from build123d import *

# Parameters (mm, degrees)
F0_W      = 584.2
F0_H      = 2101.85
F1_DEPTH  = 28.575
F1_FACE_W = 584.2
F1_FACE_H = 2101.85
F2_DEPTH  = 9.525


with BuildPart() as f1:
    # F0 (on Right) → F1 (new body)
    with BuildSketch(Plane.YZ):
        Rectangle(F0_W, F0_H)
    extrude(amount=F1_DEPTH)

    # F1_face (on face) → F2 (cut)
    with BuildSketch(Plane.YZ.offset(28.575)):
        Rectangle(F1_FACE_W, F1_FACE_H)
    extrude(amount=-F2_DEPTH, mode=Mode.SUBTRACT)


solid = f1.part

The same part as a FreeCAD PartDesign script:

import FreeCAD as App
import Part
import Sketcher
Q = App.Units.Quantity

doc = App.newDocument("Part")
body = doc.addObject("PartDesign::Body", "Body")

# Sketch on YZ plane
sketch1 = body.newObject("Sketcher::SketchObject", "Sketch")
sketch1.AttachmentSupport = (doc.getObject("YZ_Plane"), [""])
sketch1.MapMode = "FlatFace"
sketch1.addGeometry([
    Part.LineSegment(App.Vector(-292, 1051, 0), App.Vector(-292, -1051, 0)),
    Part.LineSegment(App.Vector(-292, -1051, 0), App.Vector(292, -1051, 0)),
    Part.LineSegment(App.Vector(292, -1051, 0), App.Vector(292, 1051, 0)),
    Part.LineSegment(App.Vector(292, 1051, 0), App.Vector(-292, 1051, 0)),
], False)
sketch1.addConstraint([
    Sketcher.Constraint("Coincident", 0, 2, 1, 1),
    Sketcher.Constraint("Coincident", 1, 2, 2, 1),
    Sketcher.Constraint("Coincident", 2, 2, 3, 1),
    Sketcher.Constraint("Coincident", 3, 2, 0, 1),
    Sketcher.Constraint("Vertical", 0),
    Sketcher.Constraint("Horizontal", 1),
    Sketcher.Constraint("Vertical", 2),
    Sketcher.Constraint("Horizontal", 3),
    Sketcher.Constraint("Symmetric", 0, 2, 2, 2, -1, 1),
    Sketcher.Constraint("DistanceX", 1, 1, 1, 2, Q("23 in")),
    Sketcher.Constraint("DistanceY", 0, 2, 0, 1, Q("82.75 in")),
])
pad1 = body.newObject("PartDesign::Pad", "Pad")
pad1.Profile = sketch1
pad1.Length = Q("1.125 in")

# Sketch on YZ plane
sketch2 = body.newObject("Sketcher::SketchObject", "Sketch001")
sketch2.AttachmentSupport = (doc.getObject("YZ_Plane"), [""])
sketch2.MapMode = "FlatFace"
sketch2.AttachmentOffset = App.Placement(App.Vector(0, 0, 1.125 * 25.4), App.Rotation())
sketch2.addGeometry([
    Part.LineSegment(App.Vector(-292, 1051, 0), App.Vector(-292, -1051, 0)),
    Part.LineSegment(App.Vector(-292, -1051, 0), App.Vector(292, -1051, 0)),
    Part.LineSegment(App.Vector(292, -1051, 0), App.Vector(292, 1051, 0)),
    Part.LineSegment(App.Vector(292, 1051, 0), App.Vector(-292, 1051, 0)),
], False)
sketch2.addConstraint([
    Sketcher.Constraint("Coincident", 0, 2, 1, 1),
    Sketcher.Constraint("Coincident", 1, 2, 2, 1),
    Sketcher.Constraint("Coincident", 2, 2, 3, 1),
    Sketcher.Constraint("Coincident", 3, 2, 0, 1),
    Sketcher.Constraint("Vertical", 0),
    Sketcher.Constraint("Horizontal", 1),
    Sketcher.Constraint("Vertical", 2),
    Sketcher.Constraint("Horizontal", 3),
    Sketcher.Constraint("Symmetric", 0, 2, 2, 2, -1, 1),
    Sketcher.Constraint("DistanceX", 1, 1, 1, 2, Q("23 in")),
    Sketcher.Constraint("DistanceY", 0, 2, 0, 1, Q("82.75 in")),
])
pocket1 = body.newObject("PartDesign::Pocket", "Pocket")
pocket1.Profile = sketch2
pocket1.Length = Q("0.375 in")

doc.recompute()
